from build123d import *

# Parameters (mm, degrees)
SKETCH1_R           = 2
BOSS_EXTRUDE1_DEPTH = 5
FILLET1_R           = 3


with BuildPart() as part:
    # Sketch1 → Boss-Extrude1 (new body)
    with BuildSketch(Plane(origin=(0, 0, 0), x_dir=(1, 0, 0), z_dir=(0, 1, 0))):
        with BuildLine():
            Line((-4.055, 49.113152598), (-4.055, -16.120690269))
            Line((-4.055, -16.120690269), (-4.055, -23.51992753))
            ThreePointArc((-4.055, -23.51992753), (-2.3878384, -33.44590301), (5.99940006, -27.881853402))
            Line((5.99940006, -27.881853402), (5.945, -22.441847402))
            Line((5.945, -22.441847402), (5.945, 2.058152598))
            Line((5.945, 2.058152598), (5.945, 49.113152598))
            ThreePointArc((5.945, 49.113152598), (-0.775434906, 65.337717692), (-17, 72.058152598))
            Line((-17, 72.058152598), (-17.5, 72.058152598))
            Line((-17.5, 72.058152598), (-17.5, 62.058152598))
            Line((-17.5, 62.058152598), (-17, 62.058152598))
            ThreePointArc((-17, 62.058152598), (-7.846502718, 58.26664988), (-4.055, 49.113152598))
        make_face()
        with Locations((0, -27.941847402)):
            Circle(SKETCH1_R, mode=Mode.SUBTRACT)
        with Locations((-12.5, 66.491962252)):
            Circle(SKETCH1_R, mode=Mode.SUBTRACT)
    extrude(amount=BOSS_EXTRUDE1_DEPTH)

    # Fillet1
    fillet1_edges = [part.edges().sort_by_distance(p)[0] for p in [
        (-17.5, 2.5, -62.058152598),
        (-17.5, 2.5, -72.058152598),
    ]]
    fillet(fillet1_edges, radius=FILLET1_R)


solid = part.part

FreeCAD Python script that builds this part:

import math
import FreeCAD as App
import Part
import Sketcher
from FreeCAD import Vector
Q = App.Units.Quantity


def edges_at(feature, points):
    """Names of the edges that pass closest to the given points."""
    edges = feature.Shape.Edges
    near = lambda p: min(range(len(edges)), key=lambda i: edges[i].distToShape(Part.Vertex(*p))[0])
    return sorted({f"Edge{near(p) + 1}" for p in points})

doc = App.newDocument("Part")
body = doc.addObject("PartDesign::Body", "Body")

# Sketch on XZ plane
sketch1 = body.newObject("Sketcher::SketchObject", "Sketch")
sketch1.AttachmentSupport = (doc.getObject("XZ_Plane"), [""])
sketch1.MapMode = "FlatFace"
sketch1.addGeometry(Part.LineSegment(Vector(-4.055, -49.113153, 0), Vector(-4.055, 23.519928, 0)), False)
sketch1.addGeometry(Part.ArcOfCircle(Part.Circle(Vector(0, 27.941847, 0), Vector(0, 0, 1), 5.9997), math.radians(-0.572939), math.radians(227.478476)), False)
sketch1.addGeometry(Part.LineSegment(Vector(5.9994, 27.881853, 0), Vector(5.945, 22.441847, 0)), False)
sketch1.addGeometry(Part.LineSegment(Vector(5.945, 22.441847, 0), Vector(5.945, -49.113153, 0)), False)
sketch1.addGeometry(Part.ArcOfCircle(Part.Circle(Vector(-17, -49.113153, 0), Vector(0, 0, 1), 22.945), math.radians(-90), math.radians(0)), False)
sketch1.addGeometry(Part.LineSegment(Vector(-17, -72.058153, 0), Vector(-17.5, -72.058153, 0)), False)
sketch1.addGeometry(Part.LineSegment(Vector(-17.5, -72.058153, 0), Vector(-17.5, -62.058153, 0)), False)
sketch1.addGeometry(Part.LineSegment(Vector(-17.5, -62.058153, 0), Vector(-17, -62.058153, 0)), False)
sketch1.addGeometry(Part.ArcOfCircle(Part.Circle(Vector(-17, -49.113153, 0), Vector(0, 0, 1), 12.945), math.radians(-90), math.radians(0)), False)
sketch1.addGeometry(Part.Circle(Vector(0, 27.941847, 0), Vector(0, 0, 1), 2), False)
sketch1.addGeometry(Part.Circle(Vector(-12.5, -66.491962, 0), Vector(0, 0, 1), 2), False)
sketch1.addConstraint(Sketcher.Constraint("Coincident", 0, 2, 1, 2))
sketch1.addConstraint(Sketcher.Constraint("Tangent", 1, 1, 2, 1))
sketch1.addConstraint(Sketcher.Constraint("Coincident", 2, 2, 3, 1))
sketch1.addConstraint(Sketcher.Constraint("Tangent", 3, 2, 4, 2))
sketch1.addConstraint(Sketcher.Constraint("Tangent", 4, 1, 5, 1))
sketch1.addConstraint(Sketcher.Constraint("Coincident", 5, 2, 6, 1))
sketch1.addConstraint(Sketcher.Constraint("Coincident", 6, 2, 7, 1))
sketch1.addConstraint(Sketcher.Constraint("Tangent", 7, 2, 8, 1))
sketch1.addConstraint(Sketcher.Constraint("Tangent", 8, 2, 0, 1))
sketch1.addConstraint(Sketcher.Constraint("Vertical", 0))
sketch1.addConstraint(Sketcher.Constraint("Vertical", 3))
sketch1.addConstraint(Sketcher.Constraint("Horizontal", 5))
sketch1.addConstraint(Sketcher.Constraint("Vertical", 6))
sketch1.addConstraint(Sketcher.Constraint("Horizontal", 7))
sketch1.addConstraint(Sketcher.Constraint("Coincident", 8, 3, 4, 3))
sketch1.addConstraint(Sketcher.Constraint("Coincident", 9, 3, 1, 3))
sketch1.addConstraint(Sketcher.Constraint("Equal", 9, 10))
sketch1.addConstraint(Sketcher.Constraint("PointOnObject", 1, 3, -2))
sketch1.addConstraint(Sketcher.Constraint("Diameter", 9, Q("4 mm")))
sketch1.addConstraint(Sketcher.Constraint("DistanceY", 6, 1, 6, 2, Q("10 mm")))
sketch1.addConstraint(Sketcher.Constraint("DistanceX", 5, 2, 5, 1, Q("0.5 mm")))
sketch1.addConstraint(Sketcher.Constraint("DistanceX", 4, 3, -1, 1, Q("17 mm")))
sketch1.addConstraint(Sketcher.Constraint("Radius", 4, Q("22.945 mm")))
sketch1.addConstraint(Sketcher.Constraint("DistanceX", 5, 2, 10, 3, Q("5 mm")))
sketch1.addConstraint(Sketcher.Constraint("Radius", 1, Q("5.9997 mm")))
sketch1.addConstraint(Sketcher.Constraint("DistanceY", 2, 2, 1, 3, Q("5.5 mm")))
sketch1.addConstraint(Sketcher.Constraint("DistanceY", 3, 2, 3, 1, Q("71.555 mm")))
sketch1.addConstraint(Sketcher.Constraint("DistanceY", 10, 3, 4, 3, Q("17.37881 mm")))
sketch1.addConstraint(Sketcher.Constraint("DistanceY", -1, 1, 1, 3, Q("27.941847 mm")))
pad1 = body.newObject("PartDesign::Pad", "Pad")
pad1.Profile = sketch1
pad1.Length = 5
pad1.Reversed = True
doc.recompute()

fillet = body.newObject("PartDesign::Fillet", "Fillet")
fillet.Base = (pad1, edges_at(pad1, [(-17.5, 2.5, -62.058), (-17.5, 2.5, -72.058)]))
fillet.Radius = 3

doc.recompute()
